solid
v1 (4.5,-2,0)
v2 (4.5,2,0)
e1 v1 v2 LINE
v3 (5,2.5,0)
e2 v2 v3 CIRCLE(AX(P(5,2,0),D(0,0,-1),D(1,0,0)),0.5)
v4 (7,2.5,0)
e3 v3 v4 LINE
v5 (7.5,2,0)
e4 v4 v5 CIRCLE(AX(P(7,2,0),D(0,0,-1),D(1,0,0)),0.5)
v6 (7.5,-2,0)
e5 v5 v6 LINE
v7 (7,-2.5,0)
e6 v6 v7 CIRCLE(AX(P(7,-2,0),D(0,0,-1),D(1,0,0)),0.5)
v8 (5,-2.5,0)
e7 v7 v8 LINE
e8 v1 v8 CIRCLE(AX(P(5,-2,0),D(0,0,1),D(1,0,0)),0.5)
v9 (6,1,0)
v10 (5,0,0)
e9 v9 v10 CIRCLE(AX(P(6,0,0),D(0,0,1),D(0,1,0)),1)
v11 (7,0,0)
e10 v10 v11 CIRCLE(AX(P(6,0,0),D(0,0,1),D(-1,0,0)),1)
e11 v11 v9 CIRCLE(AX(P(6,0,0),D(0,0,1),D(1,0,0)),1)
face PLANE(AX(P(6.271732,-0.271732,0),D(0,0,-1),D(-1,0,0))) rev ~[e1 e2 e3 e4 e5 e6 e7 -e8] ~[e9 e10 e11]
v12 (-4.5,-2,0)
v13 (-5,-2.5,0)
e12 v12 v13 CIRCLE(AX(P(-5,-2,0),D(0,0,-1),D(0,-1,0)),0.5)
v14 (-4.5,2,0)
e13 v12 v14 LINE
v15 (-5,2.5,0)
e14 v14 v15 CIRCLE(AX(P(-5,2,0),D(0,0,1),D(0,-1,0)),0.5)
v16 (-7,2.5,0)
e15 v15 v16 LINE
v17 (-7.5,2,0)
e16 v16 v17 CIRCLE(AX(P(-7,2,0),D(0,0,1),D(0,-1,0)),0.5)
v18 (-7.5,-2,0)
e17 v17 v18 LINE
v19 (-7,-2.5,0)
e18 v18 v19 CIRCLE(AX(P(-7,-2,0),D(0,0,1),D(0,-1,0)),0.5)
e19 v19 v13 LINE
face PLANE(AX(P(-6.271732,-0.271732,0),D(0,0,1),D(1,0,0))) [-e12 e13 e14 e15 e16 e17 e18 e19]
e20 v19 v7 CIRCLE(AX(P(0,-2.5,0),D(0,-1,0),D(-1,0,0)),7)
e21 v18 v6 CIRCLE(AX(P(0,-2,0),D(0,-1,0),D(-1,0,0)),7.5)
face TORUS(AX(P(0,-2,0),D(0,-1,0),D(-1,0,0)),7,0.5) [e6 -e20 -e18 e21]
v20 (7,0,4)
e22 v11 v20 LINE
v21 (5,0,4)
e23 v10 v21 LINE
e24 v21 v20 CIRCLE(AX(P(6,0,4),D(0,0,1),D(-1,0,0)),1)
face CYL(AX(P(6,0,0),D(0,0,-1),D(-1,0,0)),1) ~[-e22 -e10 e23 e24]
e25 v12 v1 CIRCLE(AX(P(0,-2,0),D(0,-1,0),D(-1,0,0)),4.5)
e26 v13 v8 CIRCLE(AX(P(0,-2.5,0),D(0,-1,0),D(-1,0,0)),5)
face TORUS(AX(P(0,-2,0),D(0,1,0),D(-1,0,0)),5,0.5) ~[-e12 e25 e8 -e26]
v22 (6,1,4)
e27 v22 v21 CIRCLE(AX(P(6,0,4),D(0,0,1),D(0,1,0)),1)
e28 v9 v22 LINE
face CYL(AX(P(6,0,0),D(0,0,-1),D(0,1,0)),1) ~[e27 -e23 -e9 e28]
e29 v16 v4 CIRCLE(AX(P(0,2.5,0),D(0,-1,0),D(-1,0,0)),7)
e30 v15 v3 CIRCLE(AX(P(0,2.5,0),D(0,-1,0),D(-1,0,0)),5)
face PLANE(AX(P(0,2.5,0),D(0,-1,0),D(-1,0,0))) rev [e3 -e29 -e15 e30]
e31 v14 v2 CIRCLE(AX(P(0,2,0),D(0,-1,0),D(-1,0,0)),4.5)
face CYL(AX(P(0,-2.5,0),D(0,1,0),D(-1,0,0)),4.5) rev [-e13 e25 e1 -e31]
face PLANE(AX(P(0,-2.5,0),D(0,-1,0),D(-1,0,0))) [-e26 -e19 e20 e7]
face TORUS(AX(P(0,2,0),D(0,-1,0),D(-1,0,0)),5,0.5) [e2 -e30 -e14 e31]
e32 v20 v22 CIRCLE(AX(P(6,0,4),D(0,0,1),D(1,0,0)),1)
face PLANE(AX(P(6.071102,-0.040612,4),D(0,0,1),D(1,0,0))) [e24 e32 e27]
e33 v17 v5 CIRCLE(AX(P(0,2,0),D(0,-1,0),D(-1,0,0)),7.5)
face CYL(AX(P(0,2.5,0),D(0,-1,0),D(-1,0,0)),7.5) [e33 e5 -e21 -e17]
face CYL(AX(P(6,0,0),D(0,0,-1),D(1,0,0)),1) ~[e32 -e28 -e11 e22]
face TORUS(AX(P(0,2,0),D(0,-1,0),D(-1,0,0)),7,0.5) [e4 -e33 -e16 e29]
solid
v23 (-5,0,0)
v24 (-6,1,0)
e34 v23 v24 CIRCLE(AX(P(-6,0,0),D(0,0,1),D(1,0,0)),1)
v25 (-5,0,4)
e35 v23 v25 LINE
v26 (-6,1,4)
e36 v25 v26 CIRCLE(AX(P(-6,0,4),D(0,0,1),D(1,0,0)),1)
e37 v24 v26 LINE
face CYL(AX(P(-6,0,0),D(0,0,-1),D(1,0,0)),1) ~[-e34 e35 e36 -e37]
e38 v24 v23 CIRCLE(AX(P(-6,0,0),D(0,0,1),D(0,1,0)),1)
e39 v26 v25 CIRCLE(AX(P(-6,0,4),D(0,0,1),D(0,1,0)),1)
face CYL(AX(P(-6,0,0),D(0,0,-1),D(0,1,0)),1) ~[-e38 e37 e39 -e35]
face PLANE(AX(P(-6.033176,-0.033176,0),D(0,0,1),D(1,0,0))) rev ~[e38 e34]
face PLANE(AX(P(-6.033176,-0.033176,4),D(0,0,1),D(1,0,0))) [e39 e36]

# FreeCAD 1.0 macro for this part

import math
import FreeCAD as App
import Part
import Sketcher
from FreeCAD import Vector


def edges_at(feature, points):
    """Names of the edges that pass closest to the given points."""
    edges = feature.Shape.Edges
    near = lambda p: min(range(len(edges)), key=lambda i: edges[i].distToShape(Part.Vertex(*p))[0])
    return sorted({f"Edge{near(p) + 1}" for p in points})

doc = App.newDocument("Part")
body = doc.addObject("PartDesign::Body", "Body")

sketch1 = doc.addObject("Sketcher::SketchObject", "Sketch")
body.addObject(sketch1)
sketch1.AttachmentSupport = (doc.XY_Plane, [""])
sketch1.MapMode = "FlatFace"
sketch1.addGeometry(Part.LineSegment(Vector(-4.5, -2.5, 0), Vector(-4.5, 2.5, 0)), False)
sketch1.addGeometry(Part.LineSegment(Vector(-4.5, 2.5, 0), Vector(-7.5, 2.5, 0)), False)
sketch1.addGeometry(Part.LineSegment(Vector(-7.5, 2.5, 0), Vector(-7.5, -2.5, 0)), False)
sketch1.addGeometry(Part.LineSegment(Vector(-7.5, -2.5, 0), Vector(-4.5, -2.5, 0)), False)
sketch1.addConstraint(Sketcher.Constraint("Coincident", 0, 2, 1, 1))
sketch1.addConstraint(Sketcher.Constraint("Coincident", 1, 2, 2, 1))
sketch1.addConstraint(Sketcher.Constraint("Coincident", 2, 2, 3, 1))
sketch1.addConstraint(Sketcher.Constraint("Coincident", 3, 2, 0, 1))
sketch1.addConstraint(Sketcher.Constraint("Vertical", 0))
sketch1.addConstraint(Sketcher.Constraint("Horizontal", 1))
sketch1.addConstraint(Sketcher.Constraint("Vertical", 2))
sketch1.addConstraint(Sketcher.Constraint("Horizontal", 3))
sketch1.addConstraint(Sketcher.Constraint("DistanceX", 1, 2, 1, 1, 3.0))
sketch1.addConstraint(Sketcher.Constraint("DistanceY", 0, 1, 0, 2, 5.0))
sketch1.addConstraint(Sketcher.Constraint("DistanceX", 0, 2, -1, 1, 4.5))
sketch1.addConstraint(Sketcher.Constraint("DistanceY", -1, 1, 0, 2, 2.5))
revolution = doc.addObject("PartDesign::Revolution", "Revolution")
body.addObject(revolution)
revolution.Profile = sketch1
revolution.ReferenceAxis = (sketch1, ["V_Axis"])
revolution.Angle = 180
revolution.Reversed = True
doc.recompute()

fillet = doc.addObject("PartDesign::Fillet", "Fillet")
body.addObject(fillet)
fillet.Base = (revolution, edges_at(revolution, [
    (0, 2.5, -7.5),
    (0, -2.5, -7.5),
    (0, -2.5, -4.5),
    (0, 2.5, -4.5),
]))
fillet.Radius = 0.5

sketch2 = doc.addObject("Sketcher::SketchObject", "Sketch001")
body.addObject(sketch2)
sketch2.AttachmentSupport = (doc.XY_Plane, [""])
sketch2.MapMode = "FlatFace"
sketch2.addGeometry(Part.ArcOfCircle(Part.Circle(Vector(6, 0, 0), Vector(0, 0, 1), 1), math.radians(180), math.radians(360)), False)
sketch2.addGeometry(Part.ArcOfCircle(Part.Circle(Vector(6, 0, 0), Vector(0, 0, 1), 1), math.radians(0), math.radians(90)), False)
sketch2.addGeometry(Part.ArcOfCircle(Part.Circle(Vector(6, 0, 0), Vector(0, 0, 1), 1), math.radians(90), math.radians(180)), False)
sketch2.addConstraint(Sketcher.Constraint("Tangent", 0, 2, 1, 1))
sketch2.addConstraint(Sketcher.Constraint("Tangent", 1, 2, 2, 1))
sketch2.addConstraint(Sketcher.Constraint("Tangent", 2, 2, 0, 1))
sketch2.addConstraint(Sketcher.Constraint("PointOnObject", 0, 3, -1))
sketch2.addConstraint(Sketcher.Constraint("PointOnObject", 0, 2, -1))
sketch2.addConstraint(Sketcher.Constraint("PointOnObject", 2, 2, -1))
sketch2.addConstraint(Sketcher.Constraint("Vertical", 2, 3, 1, 2))
sketch2.addConstraint(Sketcher.Constraint("Radius", 0, 1.0))
sketch2.addConstraint(Sketcher.Constraint("DistanceX", -1, 1, 0, 3, 6.0))
pad1 = doc.addObject("PartDesign::Pad", "Pad")
body.addObject(pad1)
pad1.Profile = sketch2
pad1.Length = 4
body2 = doc.addObject("PartDesign::Body", "Body001")

sketch3 = doc.addObject("Sketcher::SketchObject", "Sketch002")
body2.addObject(sketch3)
sketch3.AttachmentSupport = (doc.getObject("XY_Plane001"), [""])
sketch3.MapMode = "FlatFace"
sketch3.addGeometry(Part.ArcOfCircle(Part.Circle(Vector(-6, 0, 0), Vector(0, 0, 1), 1), math.radians(90), math.radians(360)), False)
sketch3.addGeometry(Part.ArcOfCircle(Part.Circle(Vector(-6, 0, 0), Vector(0, 0, 1), 1), math.radians(0), math.radians(90)), False)
sketch3.addConstraint(Sketcher.Constraint("Tangent", 0, 1, 1, 2))
sketch3.addConstraint(Sketcher.Constraint("Coincident", 1, 1, 0, 2))
sketch3.addConstraint(Sketcher.Constraint("PointOnObject", 0, 3, -1))
sketch3.addConstraint(Sketcher.Constraint("PointOnObject", 1, 1, -1))
sketch3.addConstraint(Sketcher.Constraint("Vertical", 1, 3, 0, 1))
sketch3.addConstraint(Sketcher.Constraint("Radius", 0, 1.0))
sketch3.addConstraint(Sketcher.Constraint("DistanceX", 0, 3, -1, 1, 6.0))
pad2 = doc.addObject("PartDesign::Pad", "Pad001")
body2.addObject(pad2)
pad2.Profile = sketch3
pad2.Length = 4

doc.recompute()
